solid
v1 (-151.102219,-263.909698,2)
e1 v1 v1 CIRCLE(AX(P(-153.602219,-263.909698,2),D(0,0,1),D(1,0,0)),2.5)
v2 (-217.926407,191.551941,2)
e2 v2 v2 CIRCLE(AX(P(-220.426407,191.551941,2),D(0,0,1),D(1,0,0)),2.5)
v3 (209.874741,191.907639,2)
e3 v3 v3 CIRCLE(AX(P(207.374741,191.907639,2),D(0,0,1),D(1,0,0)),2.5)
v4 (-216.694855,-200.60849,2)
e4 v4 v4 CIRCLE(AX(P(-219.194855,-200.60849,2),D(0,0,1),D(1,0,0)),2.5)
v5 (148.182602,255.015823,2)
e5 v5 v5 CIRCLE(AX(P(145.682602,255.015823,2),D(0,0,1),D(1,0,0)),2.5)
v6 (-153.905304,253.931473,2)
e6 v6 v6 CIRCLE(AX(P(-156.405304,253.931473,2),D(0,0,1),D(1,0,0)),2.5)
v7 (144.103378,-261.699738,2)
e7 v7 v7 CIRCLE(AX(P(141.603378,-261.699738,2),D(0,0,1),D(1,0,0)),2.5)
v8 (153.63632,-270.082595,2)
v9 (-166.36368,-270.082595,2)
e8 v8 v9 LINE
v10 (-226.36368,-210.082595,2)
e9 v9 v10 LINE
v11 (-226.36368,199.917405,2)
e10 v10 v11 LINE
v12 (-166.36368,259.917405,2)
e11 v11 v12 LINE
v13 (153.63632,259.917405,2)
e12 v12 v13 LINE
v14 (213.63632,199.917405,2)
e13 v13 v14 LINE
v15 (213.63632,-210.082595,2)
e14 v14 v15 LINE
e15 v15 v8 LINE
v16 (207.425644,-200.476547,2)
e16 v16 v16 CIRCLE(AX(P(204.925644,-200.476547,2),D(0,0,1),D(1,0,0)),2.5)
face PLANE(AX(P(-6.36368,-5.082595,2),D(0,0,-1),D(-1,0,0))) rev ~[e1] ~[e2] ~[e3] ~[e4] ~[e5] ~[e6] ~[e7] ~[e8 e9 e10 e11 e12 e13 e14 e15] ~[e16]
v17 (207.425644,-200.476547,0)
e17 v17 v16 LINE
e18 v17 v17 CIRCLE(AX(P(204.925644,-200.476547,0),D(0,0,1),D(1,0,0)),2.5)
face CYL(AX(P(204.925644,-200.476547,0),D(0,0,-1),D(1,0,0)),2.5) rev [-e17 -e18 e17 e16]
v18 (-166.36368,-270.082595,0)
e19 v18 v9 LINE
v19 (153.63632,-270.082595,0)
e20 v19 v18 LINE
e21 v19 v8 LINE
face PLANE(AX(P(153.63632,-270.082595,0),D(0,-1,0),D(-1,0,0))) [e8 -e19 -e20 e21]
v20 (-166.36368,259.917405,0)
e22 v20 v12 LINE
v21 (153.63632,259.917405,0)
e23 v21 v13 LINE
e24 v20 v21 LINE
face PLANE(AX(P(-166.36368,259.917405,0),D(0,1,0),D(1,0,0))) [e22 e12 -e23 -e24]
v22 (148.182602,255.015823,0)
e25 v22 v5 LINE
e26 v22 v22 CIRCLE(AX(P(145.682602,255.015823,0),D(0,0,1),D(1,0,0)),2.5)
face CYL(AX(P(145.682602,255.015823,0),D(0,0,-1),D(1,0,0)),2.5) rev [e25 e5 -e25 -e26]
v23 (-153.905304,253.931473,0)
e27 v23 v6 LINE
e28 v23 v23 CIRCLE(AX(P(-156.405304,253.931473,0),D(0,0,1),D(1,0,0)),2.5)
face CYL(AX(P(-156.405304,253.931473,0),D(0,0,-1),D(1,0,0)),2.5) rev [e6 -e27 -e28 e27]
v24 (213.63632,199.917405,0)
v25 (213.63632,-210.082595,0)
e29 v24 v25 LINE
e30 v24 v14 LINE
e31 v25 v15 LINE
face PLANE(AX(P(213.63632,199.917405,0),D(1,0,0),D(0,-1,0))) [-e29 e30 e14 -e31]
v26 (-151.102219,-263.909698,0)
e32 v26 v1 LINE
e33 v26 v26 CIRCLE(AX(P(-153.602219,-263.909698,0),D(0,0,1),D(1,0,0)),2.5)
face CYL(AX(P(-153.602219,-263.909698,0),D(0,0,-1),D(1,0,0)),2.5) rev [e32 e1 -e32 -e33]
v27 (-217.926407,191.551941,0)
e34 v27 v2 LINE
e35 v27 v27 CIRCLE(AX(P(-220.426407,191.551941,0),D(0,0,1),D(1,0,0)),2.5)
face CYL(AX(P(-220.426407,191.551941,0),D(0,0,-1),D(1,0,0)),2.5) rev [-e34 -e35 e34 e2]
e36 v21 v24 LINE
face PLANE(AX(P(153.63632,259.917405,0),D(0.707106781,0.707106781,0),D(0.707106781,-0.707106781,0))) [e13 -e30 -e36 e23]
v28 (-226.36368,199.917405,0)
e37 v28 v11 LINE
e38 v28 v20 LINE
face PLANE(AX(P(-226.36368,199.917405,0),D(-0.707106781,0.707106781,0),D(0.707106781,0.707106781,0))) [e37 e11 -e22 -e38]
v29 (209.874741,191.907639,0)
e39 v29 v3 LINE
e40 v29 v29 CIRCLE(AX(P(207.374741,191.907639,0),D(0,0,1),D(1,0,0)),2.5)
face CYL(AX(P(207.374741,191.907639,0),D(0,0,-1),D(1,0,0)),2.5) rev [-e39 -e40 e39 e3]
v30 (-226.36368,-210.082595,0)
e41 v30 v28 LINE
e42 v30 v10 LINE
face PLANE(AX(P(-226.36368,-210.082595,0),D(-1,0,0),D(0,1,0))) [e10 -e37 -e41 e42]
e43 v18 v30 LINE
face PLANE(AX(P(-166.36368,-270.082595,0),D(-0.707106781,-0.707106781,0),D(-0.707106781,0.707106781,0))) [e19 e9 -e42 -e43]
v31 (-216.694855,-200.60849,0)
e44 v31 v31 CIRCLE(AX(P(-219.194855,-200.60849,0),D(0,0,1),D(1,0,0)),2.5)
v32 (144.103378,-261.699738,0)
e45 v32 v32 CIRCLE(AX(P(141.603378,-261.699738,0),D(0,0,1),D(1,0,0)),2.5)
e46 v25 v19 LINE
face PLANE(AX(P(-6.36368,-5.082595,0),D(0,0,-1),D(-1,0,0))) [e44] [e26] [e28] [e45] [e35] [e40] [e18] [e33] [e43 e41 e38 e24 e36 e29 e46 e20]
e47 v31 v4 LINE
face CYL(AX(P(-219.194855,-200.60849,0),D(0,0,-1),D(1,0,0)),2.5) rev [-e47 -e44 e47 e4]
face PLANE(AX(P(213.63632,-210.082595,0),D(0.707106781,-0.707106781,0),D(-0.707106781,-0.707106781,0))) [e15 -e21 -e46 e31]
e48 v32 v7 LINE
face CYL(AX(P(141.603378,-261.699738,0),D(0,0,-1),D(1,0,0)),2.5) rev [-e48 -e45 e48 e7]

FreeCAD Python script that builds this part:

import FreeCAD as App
import Part
import Sketcher
from FreeCAD import Vector
Q = App.Units.Quantity

doc = App.newDocument("Part")
body = doc.addObject("PartDesign::Body", "Body")

# Sketch on XY plane
sketch1 = body.newObject("Sketcher::SketchObject", "Sketch")
sketch1.AttachmentSupport = (doc.getObject("XY_Plane"), [""])
sketch1.MapMode = "FlatFace"
sketch1.addGeometry([
    Part.LineSegment(Vector(153.6, 259.9, 0), Vector(-166.4, 259.9, 0)),  # 0
    Part.LineSegment(Vector(-166.4, 259.9, 0), Vector(-226.4, 199.9, 0)),  # 1
    Part.LineSegment(Vector(-226.4, 199.9, 0), Vector(-226.4, -210.1, 0)),  # 2
    Part.LineSegment(Vector(-226.4, -210.1, 0), Vector(-166.4, -270.1, 0)),  # 3
    Part.LineSegment(Vector(-166.4, -270.1, 0), Vector(153.6, -270.1, 0)),  # 4
    Part.LineSegment(Vector(153.6, -270.1, 0), Vector(213.6, -210.1, 0)),  # 5
    Part.LineSegment(Vector(213.6, -210.1, 0), Vector(213.6, 199.9, 0)),  # 6
    Part.LineSegment(Vector(213.6, 199.9, 0), Vector(153.6, 259.9, 0)),  # 7
    Part.Circle(Vector(141.6, -261.7, 0), Vector(0, 0, 1), 2.5),  # 8
    Part.Circle(Vector(204.9, -200.5, 0), Vector(0, 0, 1), 2.5),  # 9
    Part.Circle(Vector(-153.6, -263.9, 0), Vector(0, 0, 1), 2.5),  # 10
    Part.Circle(Vector(-219.2, -200.6, 0), Vector(0, 0, 1), 2.5),  # 11
    Part.Circle(Vector(207.4, 191.9, 0), Vector(0, 0, 1), 2.5),  # 12
    Part.Circle(Vector(145.7, 255, 0), Vector(0, 0, 1), 2.5),  # 13
    Part.Circle(Vector(-220.4, 191.6, 0), Vector(0, 0, 1), 2.5),  # 14
    Part.Circle(Vector(-156.4, 253.9, 0), Vector(0, 0, 1), 2.5),  # 15
], False)
sketch1.addConstraint([
    Sketcher.Constraint("Coincident", 0, 2, 1, 1),
    Sketcher.Constraint("Coincident", 1, 2, 2, 1),
    Sketcher.Constraint("Coincident", 2, 2, 3, 1),
    Sketcher.Constraint("Coincident", 3, 2, 4, 1),
    Sketcher.Constraint("Coincident", 4, 2, 5, 1),
    Sketcher.Constraint("Coincident", 5, 2, 6, 1),
    Sketcher.Constraint("Coincident", 6, 2, 7, 1),
    Sketcher.Constraint("Coincident", 7, 2, 0, 1),
    Sketcher.Constraint("Horizontal", 0),
    Sketcher.Constraint("Vertical", 2),
    Sketcher.Constraint("Horizontal", 4),
    Sketcher.Constraint("Vertical", 6),
    Sketcher.Constraint("Equal", 8, 9),
    Sketcher.Constraint("Equal", 9, 10),
    Sketcher.Constraint("Equal", 10, 11),
    Sketcher.Constraint("Equal", 11, 12),
    Sketcher.Constraint("Equal", 12, 13),
    Sketcher.Constraint("Equal", 13, 14),
    Sketcher.Constraint("Equal", 14, 15),
    Sketcher.Constraint("Perpendicular", 1, 3),
    Sketcher.Constraint("Perpendicular", 3, 5),
    Sketcher.Constraint("Perpendicular", 5, 7),
    Sketcher.Constraint("Horizontal", 2, 2, 5, 2),
    Sketcher.Constraint("Horizontal", 1, 2, 6, 2),
    Sketcher.Constraint("Vertical", 0, 2, 3, 2),
    Sketcher.Constraint("Vertical", 4, 2, 7, 2),
    Sketcher.Constraint("Diameter", 8, Q("5 mm")),
    Sketcher.Constraint("DistanceX", 0, 2, 0, 1, Q("320 mm")),
    Sketcher.Constraint("DistanceY", 2, 2, 2, 1, Q("410 mm")),
    Sketcher.Constraint("DistanceX", 1, 2, 0, 2, Q("60 mm")),
    Sketcher.Constraint("DistanceY", 10, 3, -1, 1, Q("263.909698 mm")),
    Sketcher.Constraint("DistanceX", -1, 1, 13, 3, Q("145.682602 mm")),
    Sketcher.Constraint("DistanceX", 11, 3, 9, 3, Q("424.120499 mm")),
    Sketcher.Constraint("DistanceX", -1, 1, 8, 3, Q("141.603378 mm")),
    Sketcher.Constraint("DistanceY", 8, 3, -1, 1, Q("261.699738 mm")),
    Sketcher.Constraint("DistanceX", 10, 3, -1, 1, Q("153.602219 mm")),
    Sketcher.Constraint("DistanceY", 11, 3, -1, 1, Q("200.60849 mm")),
    Sketcher.Constraint("DistanceX", -1, 1, 12, 3, Q("207.374741 mm")),
    Sketcher.Constraint("DistanceY", -1, 1, 12, 3, Q("191.907639 mm")),
    Sketcher.Constraint("DistanceY", -1, 1, 14, 3, Q("191.551941 mm")),
    Sketcher.Constraint("DistanceX", 0, 2, -1, 1, Q("166.36368 mm")),
    Sketcher.Constraint("DistanceY", 8, 3, 9, 3, Q("61.223191 mm")),
    Sketcher.Constraint("DistanceY", 9, 3, 13, 3, Q("455.49237 mm")),
    Sketcher.Constraint("DistanceX", 14, 3, 13, 3, Q("366.109009 mm")),
    Sketcher.Constraint("DistanceX", 14, 3, 9, 3, Q("425.352051 mm")),
    Sketcher.Constraint("DistanceY", 15, 3, 13, 3, Q("1.08435 mm")),
    Sketcher.Constraint("DistanceX", 11, 3, 15, 3, Q("62.789551 mm")),
    Sketcher.Constraint("DistanceY", 15, 3, 0, 2, Q("5.985932 mm")),
])
pad1 = body.newObject("PartDesign::Pad", "Pad")
pad1.Profile = sketch1
pad1.Length = 2

doc.recompute()
